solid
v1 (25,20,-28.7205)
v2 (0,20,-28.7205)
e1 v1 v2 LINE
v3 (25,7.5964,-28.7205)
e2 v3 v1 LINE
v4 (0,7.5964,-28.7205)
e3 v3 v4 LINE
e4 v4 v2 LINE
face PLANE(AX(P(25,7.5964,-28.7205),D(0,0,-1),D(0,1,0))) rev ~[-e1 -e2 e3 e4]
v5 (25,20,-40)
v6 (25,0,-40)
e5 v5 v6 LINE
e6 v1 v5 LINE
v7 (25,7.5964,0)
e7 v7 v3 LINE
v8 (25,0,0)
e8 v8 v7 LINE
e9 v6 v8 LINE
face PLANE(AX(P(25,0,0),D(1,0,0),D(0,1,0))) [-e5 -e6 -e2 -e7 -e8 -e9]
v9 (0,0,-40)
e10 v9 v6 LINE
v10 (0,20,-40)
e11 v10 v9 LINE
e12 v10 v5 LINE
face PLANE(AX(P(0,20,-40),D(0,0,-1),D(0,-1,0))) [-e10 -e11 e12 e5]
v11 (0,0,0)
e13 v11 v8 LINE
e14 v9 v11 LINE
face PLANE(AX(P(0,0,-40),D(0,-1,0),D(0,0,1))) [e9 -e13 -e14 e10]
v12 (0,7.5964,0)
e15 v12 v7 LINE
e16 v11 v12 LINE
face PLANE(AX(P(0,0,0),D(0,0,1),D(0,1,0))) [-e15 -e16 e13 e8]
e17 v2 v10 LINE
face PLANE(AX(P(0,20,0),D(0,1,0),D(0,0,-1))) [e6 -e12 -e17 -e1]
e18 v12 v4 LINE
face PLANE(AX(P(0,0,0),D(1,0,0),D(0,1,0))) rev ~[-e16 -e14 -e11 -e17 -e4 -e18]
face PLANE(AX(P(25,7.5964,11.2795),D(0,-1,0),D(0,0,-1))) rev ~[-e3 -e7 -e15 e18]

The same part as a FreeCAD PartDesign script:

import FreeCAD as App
import Part
import Sketcher
from FreeCAD import Vector

doc = App.newDocument("Part")
body = doc.addObject("PartDesign::Body", "Body")

# Sketch on YZ plane
sketch1 = doc.addObject("Sketcher::SketchObject", "Sketch")
body.addObject(sketch1)
sketch1.AttachmentSupport = (doc.YZ_Plane, [""])
sketch1.MapMode = "FlatFace"
sketch1.addGeometry(Part.LineSegment(Vector(20, 0, 0), Vector(0, 0, 0)), False)
sketch1.addGeometry(Part.LineSegment(Vector(0, 0, 0), Vector(0, -40, 0)), False)
sketch1.addGeometry(Part.LineSegment(Vector(0, -40, 0), Vector(20, -40, 0)), False)
sketch1.addGeometry(Part.LineSegment(Vector(20, -40, 0), Vector(20, 0, 0)), False)
sketch1.addConstraint(Sketcher.Constraint("Coincident", 0, 2, 1, 1))
sketch1.addConstraint(Sketcher.Constraint("Coincident", 1, 2, 2, 1))
sketch1.addConstraint(Sketcher.Constraint("Coincident", 2, 2, 3, 1))
sketch1.addConstraint(Sketcher.Constraint("Coincident", 3, 2, 0, 1))
sketch1.addConstraint(Sketcher.Constraint("Horizontal", 0))
sketch1.addConstraint(Sketcher.Constraint("Vertical", 1))
sketch1.addConstraint(Sketcher.Constraint("Horizontal", 2))
sketch1.addConstraint(Sketcher.Constraint("Vertical", 3))
sketch1.addConstraint(Sketcher.Constraint("Coincident", 0, 2, -1, 1))
sketch1.addConstraint(Sketcher.Constraint("DistanceX", 0, 2, 0, 1, 20.0))
sketch1.addConstraint(Sketcher.Constraint("DistanceY", 1, 2, 1, 1, 40.0))
pad1 = doc.addObject("PartDesign::Pad", "Pad")
body.addObject(pad1)
pad1.Profile = sketch1
pad1.Length = 25

# Sketch on YZ plane
sketch2 = doc.addObject("Sketcher::SketchObject", "Sketch001")
body.addObject(sketch2)
sketch2.AttachmentSupport = (doc.YZ_Plane, [""])
sketch2.MapMode = "FlatFace"
sketch2.AttachmentOffset = App.Placement(Vector(0, 0, 25), App.Rotation())
sketch2.addGeometry(Part.LineSegment(Vector(8, -29, 0), Vector(20, -29, 0)), False)
sketch2.addGeometry(Part.LineSegment(Vector(20, -29, 0), Vector(20, 11, 0)), False)
sketch2.addGeometry(Part.LineSegment(Vector(20, 11, 0), Vector(8, 11, 0)), False)
sketch2.addGeometry(Part.LineSegment(Vector(8, 11, 0), Vector(8, -29, 0)), False)
sketch2.addConstraint(Sketcher.Constraint("Coincident", 0, 2, 1, 1))
sketch2.addConstraint(Sketcher.Constraint("Coincident", 1, 2, 2, 1))
sketch2.addConstraint(Sketcher.Constraint("Coincident", 2, 2, 3, 1))
sketch2.addConstraint(Sketcher.Constraint("Coincident", 3, 2, 0, 1))
sketch2.addConstraint(Sketcher.Constraint("Horizontal", 0))
sketch2.addConstraint(Sketcher.Constraint("Vertical", 1))
sketch2.addConstraint(Sketcher.Constraint("Horizontal", 2))
sketch2.addConstraint(Sketcher.Constraint("Vertical", 3))
sketch2.addConstraint(Sketcher.Constraint("DistanceY", 1, 1, 1, 2, 40.0))
sketch2.addConstraint(Sketcher.Constraint("DistanceX", -1, 1, 0, 2, 20.0))
sketch2.addConstraint(Sketcher.Constraint("DistanceX", 0, 1, 0, 2, 12.4036))
sketch2.addConstraint(Sketcher.Constraint("DistanceY", 0, 2, -1, 1, 28.7205))
pocket1 = doc.addObject("PartDesign::Pocket", "Pocket")
body.addObject(pocket1)
pocket1.Profile = sketch2
pocket1.Type = "ThroughAll"

doc.recompute()
